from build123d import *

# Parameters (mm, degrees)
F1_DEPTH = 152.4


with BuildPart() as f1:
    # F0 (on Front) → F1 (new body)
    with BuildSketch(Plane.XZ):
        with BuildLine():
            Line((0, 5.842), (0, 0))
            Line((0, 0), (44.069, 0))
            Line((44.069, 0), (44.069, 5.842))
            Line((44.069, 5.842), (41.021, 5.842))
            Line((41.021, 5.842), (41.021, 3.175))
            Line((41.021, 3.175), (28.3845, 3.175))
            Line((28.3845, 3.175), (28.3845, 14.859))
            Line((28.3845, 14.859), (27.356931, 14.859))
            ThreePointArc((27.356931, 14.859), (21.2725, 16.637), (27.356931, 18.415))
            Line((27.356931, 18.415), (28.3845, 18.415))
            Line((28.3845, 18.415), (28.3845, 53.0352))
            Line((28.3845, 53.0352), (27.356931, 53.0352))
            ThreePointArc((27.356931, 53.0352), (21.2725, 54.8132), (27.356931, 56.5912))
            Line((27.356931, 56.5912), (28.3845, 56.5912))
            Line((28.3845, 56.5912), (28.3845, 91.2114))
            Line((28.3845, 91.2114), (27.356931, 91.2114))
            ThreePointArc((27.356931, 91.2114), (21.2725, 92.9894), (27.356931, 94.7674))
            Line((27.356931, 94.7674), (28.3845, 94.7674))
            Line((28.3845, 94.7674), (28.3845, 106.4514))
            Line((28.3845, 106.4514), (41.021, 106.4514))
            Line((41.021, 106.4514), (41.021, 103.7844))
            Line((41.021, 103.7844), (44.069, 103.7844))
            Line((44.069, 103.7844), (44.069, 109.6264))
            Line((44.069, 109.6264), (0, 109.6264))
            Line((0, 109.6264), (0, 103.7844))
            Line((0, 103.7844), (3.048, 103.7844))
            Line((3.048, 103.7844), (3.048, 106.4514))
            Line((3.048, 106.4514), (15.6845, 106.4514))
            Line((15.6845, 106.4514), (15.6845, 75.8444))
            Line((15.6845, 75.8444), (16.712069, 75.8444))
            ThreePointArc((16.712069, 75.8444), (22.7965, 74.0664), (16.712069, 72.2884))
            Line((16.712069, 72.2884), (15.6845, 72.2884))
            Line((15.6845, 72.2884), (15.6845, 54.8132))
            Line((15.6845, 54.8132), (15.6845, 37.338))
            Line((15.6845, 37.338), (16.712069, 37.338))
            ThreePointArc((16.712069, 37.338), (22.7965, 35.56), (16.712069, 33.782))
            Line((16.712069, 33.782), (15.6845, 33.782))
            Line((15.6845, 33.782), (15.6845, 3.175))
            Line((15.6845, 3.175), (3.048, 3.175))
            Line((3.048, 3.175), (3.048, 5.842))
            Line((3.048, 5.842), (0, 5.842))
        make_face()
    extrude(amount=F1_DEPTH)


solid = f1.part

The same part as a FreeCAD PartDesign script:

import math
import FreeCAD as App
import Part
import Sketcher
from FreeCAD import Vector
Q = App.Units.Quantity

doc = App.newDocument("Part")
params = doc.addObject("Spreadsheet::Sheet", "Params")
for row, (alias, value) in enumerate([
    ("sketch1_radius", "0.13 in"),
    ("sketch1_width", "0.12 in"),
    ("sketch1_height", "0.23 in"),
    ("sketch1_height2", "0.46 in"),
    ("sketch1_width2", "1.735 in"),
    ("pad1_length", "6 in"),
], start=1):
    params.set(f"A{row}", alias)
    params.set(f"B{row}", "=" + value)
    params.setAlias(f"B{row}", alias)

body = doc.addObject("PartDesign::Body", "Body")

# Sketch on XZ plane
sketch1 = doc.addObject("Sketcher::SketchObject", "Sketch")
body.addObject(sketch1)
sketch1.AttachmentSupport = (doc.XZ_Plane, [""])
sketch1.MapMode = "FlatFace"
sketch1.addGeometry([
    Part.LineSegment(Vector(0, 5.8, 0), Vector(0, 0, 0)),  # 0
    Part.LineSegment(Vector(0, 0, 0), Vector(44.1, 0, 0)),  # 1
    Part.LineSegment(Vector(44.1, 0, 0), Vector(44.1, 5.8, 0)),  # 2
    Part.LineSegment(Vector(44.1, 5.8, 0), Vector(41, 5.8, 0)),  # 3
    Part.LineSegment(Vector(41, 5.8, 0), Vector(41, 3.2, 0)),  # 4
    Part.LineSegment(Vector(41, 3.2, 0), Vector(28.4, 3.2, 0)),  # 5
    Part.LineSegment(Vector(28.4, 3.2, 0), Vector(28.4, 14.9, 0)),  # 6
    Part.LineSegment(Vector(28.4, 14.9, 0), Vector(27.4, 14.9, 0)),  # 7
    Part.ArcOfCircle(Part.Circle(Vector(24.6, 16.6, 0), Vector(0, 0, 1), 3.3), math.radians(33), math.radians(327)),  # 8
    Part.LineSegment(Vector(27.4, 18.4, 0), Vector(28.4, 18.4, 0)),  # 9
    Part.LineSegment(Vector(28.4, 18.4, 0), Vector(28.4, 53, 0)),  # 10
    Part.LineSegment(Vector(28.4, 53, 0), Vector(27.4, 53, 0)),  # 11
    Part.ArcOfCircle(Part.Circle(Vector(24.6, 54.8, 0), Vector(0, 0, 1), 3.3), math.radians(33), math.radians(327)),  # 12
    Part.LineSegment(Vector(27.4, 56.6, 0), Vector(28.4, 56.6, 0)),  # 13
    Part.LineSegment(Vector(28.4, 56.6, 0), Vector(28.4, 91.2, 0)),  # 14
    Part.LineSegment(Vector(28.4, 91.2, 0), Vector(27.4, 91.2, 0)),  # 15
    Part.ArcOfCircle(Part.Circle(Vector(24.6, 93, 0), Vector(0, 0, 1), 3.3), math.radians(33), math.radians(327)),  # 16
    Part.LineSegment(Vector(27.4, 94.8, 0), Vector(28.4, 94.8, 0)),  # 17
    Part.LineSegment(Vector(28.4, 94.8, 0), Vector(28.4, 106.5, 0)),  # 18
    Part.LineSegment(Vector(28.4, 106.5, 0), Vector(41, 106.5, 0)),  # 19
    Part.LineSegment(Vector(41, 106.5, 0), Vector(41, 103.8, 0)),  # 20
    Part.LineSegment(Vector(41, 103.8, 0), Vector(44.1, 103.8, 0)),  # 21
    Part.LineSegment(Vector(44.1, 103.8, 0), Vector(44.1, 109.6, 0)),  # 22
    Part.LineSegment(Vector(44.1, 109.6, 0), Vector(0, 109.6, 0)),  # 23
    Part.LineSegment(Vector(0, 109.6, 0), Vector(0, 103.8, 0)),  # 24
    Part.LineSegment(Vector(0, 103.8, 0), Vector(3, 103.8, 0)),  # 25
    Part.LineSegment(Vector(3, 103.8, 0), Vector(3, 106.5, 0)),  # 26
    Part.LineSegment(Vector(3, 106.5, 0), Vector(15.7, 106.5, 0)),  # 27
    Part.LineSegment(Vector(15.7, 106.5, 0), Vector(15.7, 75.8, 0)),  # 28
    Part.LineSegment(Vector(15.7, 75.8, 0), Vector(16.7, 75.8, 0)),  # 29
    Part.ArcOfCircle(Part.Circle(Vector(19.5, 74.1, 0), Vector(0, 0, 1), 3.3), math.radians(-147), math.radians(147)),  # 30
    Part.LineSegment(Vector(16.7, 72.3, 0), Vector(15.7, 72.3, 0)),  # 31
    Part.LineSegment(Vector(15.7, 72.3, 0), Vector(15.7, 37.3, 0)),  # 32
    Part.LineSegment(Vector(15.7, 37.3, 0), Vector(16.7, 37.3, 0)),  # 33
    Part.ArcOfCircle(Part.Circle(Vector(19.5, 35.6, 0), Vector(0, 0, 1), 3.3), math.radians(-147), math.radians(147)),  # 34
    Part.LineSegment(Vector(16.7, 33.8, 0), Vector(15.7, 33.8, 0)),  # 35
    Part.LineSegment(Vector(15.7, 33.8, 0), Vector(15.7, 3.2, 0)),  # 36
    Part.LineSegment(Vector(15.7, 3.2, 0), Vector(3, 3.2, 0)),  # 37
    Part.LineSegment(Vector(3, 3.2, 0), Vector(3, 5.8, 0)),  # 38
    Part.LineSegment(Vector(3, 5.8, 0), Vector(0, 5.8, 0)),  # 39
], False)
sketch1.addConstraint([
    Sketcher.Constraint("Coincident", 0, 2, 1, 1),
    Sketcher.Constraint("Coincident", 1, 2, 2, 1),
    Sketcher.Constraint("Coincident", 2, 2, 3, 1),
    Sketcher.Constraint("Coincident", 3, 2, 4, 1),
    Sketcher.Constraint("Coincident", 4, 2, 5, 1),
    Sketcher.Constraint("Coincident", 5, 2, 6, 1),
    Sketcher.Constraint("Coincident", 6, 2, 7, 1),
    Sketcher.Constraint("Coincident", 7, 2, 8, 2),
    Sketcher.Constraint("Coincident", 8, 1, 9, 1),
    Sketcher.Constraint("Coincident", 9, 2, 10, 1),
    Sketcher.Constraint("Coincident", 10, 2, 11, 1),
    Sketcher.Constraint("Coincident", 11, 2, 12, 2),
    Sketcher.Constraint("Coincident", 12, 1, 13, 1),
    Sketcher.Constraint("Coincident", 13, 2, 14, 1),
    Sketcher.Constraint("Coincident", 14, 2, 15, 1),
    Sketcher.Constraint("Coincident", 15, 2, 16, 2),
    Sketcher.Constraint("Coincident", 16, 1, 17, 1),
    Sketcher.Constraint("Coincident", 17, 2, 18, 1),
    Sketcher.Constraint("Coincident", 18, 2, 19, 1),
    Sketcher.Constraint("Coincident", 19, 2, 20, 1),
    Sketcher.Constraint("Coincident", 20, 2, 21, 1),
    Sketcher.Constraint("Coincident", 21, 2, 22, 1),
    Sketcher.Constraint("Coincident", 22, 2, 23, 1),
    Sketcher.Constraint("Coincident", 23, 2, 24, 1),
    Sketcher.Constraint("Coincident", 24, 2, 25, 1),
    Sketcher.Constraint("Coincident", 25, 2, 26, 1),
    Sketcher.Constraint("Coincident", 26, 2, 27, 1),
    Sketcher.Constraint("Coincident", 27, 2, 28, 1),
    Sketcher.Constraint("Coincident", 28, 2, 29, 1),
    Sketcher.Constraint("Coincident", 29, 2, 30, 2),
    Sketcher.Constraint("Coincident", 30, 1, 31, 1),
    Sketcher.Constraint("Coincident", 31, 2, 32, 1),
    Sketcher.Constraint("Coincident", 32, 2, 33, 1),
    Sketcher.Constraint("Coincident", 33, 2, 34, 2),
    Sketcher.Constraint("Coincident", 34, 1, 35, 1),
    Sketcher.Constraint("Coincident", 35, 2, 36, 1),
    Sketcher.Constraint("Coincident", 36, 2, 37, 1),
    Sketcher.Constraint("Coincident", 37, 2, 38, 1),
    Sketcher.Constraint("Coincident", 38, 2, 39, 1),
    Sketcher.Constraint("Coincident", 39, 2, 0, 1),
    Sketcher.Constraint("Vertical", 0),
    Sketcher.Constraint("Horizontal", 1),
    Sketcher.Constraint("Vertical", 2),
    Sketcher.Constraint("Horizontal", 3),
    Sketcher.Constraint("Vertical", 4),
    Sketcher.Constraint("Horizontal", 5),
    Sketcher.Constraint("Vertical", 6),
    Sketcher.Constraint("Horizontal", 7),
    Sketcher.Constraint("Horizontal", 9),
    Sketcher.Constraint("Vertical", 10),
    Sketcher.Constraint("Horizontal", 11),
    Sketcher.Constraint("Horizontal", 13),
    Sketcher.Constraint("Vertical", 14),
    Sketcher.Constraint("Horizontal", 15),
    Sketcher.Constraint("Horizontal", 17),
    Sketcher.Constraint("Vertical", 18),
    Sketcher.Constraint("Horizontal", 19),
    Sketcher.Constraint("Vertical", 20),
    Sketcher.Constraint("Horizontal", 21),
    Sketcher.Constraint("Vertical", 22),
    Sketcher.Constraint("Horizontal", 23),
    Sketcher.Constraint("Vertical", 24),
    Sketcher.Constraint("Horizontal", 25),
    Sketcher.Constraint("Vertical", 26),
    Sketcher.Constraint("Horizontal", 27),
    Sketcher.Constraint("Vertical", 28),
    Sketcher.Constraint("Horizontal", 29),
    Sketcher.Constraint("Horizontal", 31),
    Sketcher.Constraint("Vertical", 32),
    Sketcher.Constraint("Horizontal", 33),
    Sketcher.Constraint("Horizontal", 35),
    Sketcher.Constraint("Vertical", 36),
    Sketcher.Constraint("Horizontal", 37),
    Sketcher.Constraint("Vertical", 38),
    Sketcher.Constraint("Horizontal", 39),
    Sketcher.Constraint("Coincident", 0, 2, -1, 1),
    Sketcher.Constraint("Equal", 8, 12),
    Sketcher.Constraint("Equal", 12, 16),
    Sketcher.Constraint("Equal", 16, 30),
    Sketcher.Constraint("Equal", 30, 34),
    Sketcher.Constraint("PointOnObject", 23, 2, -2),
    Sketcher.Constraint("Horizontal", 21, 2, 24, 2),
    Sketcher.Constraint("Horizontal", 19, 2, 26, 2),
    Sketcher.Constraint("Horizontal", 5, 2, 36, 2),
    Sketcher.Constraint("Horizontal", 3, 2, 38, 2),
    Sketcher.Constraint("Vertical", 8, 3, 12, 3),
    Sketcher.Constraint("Vertical", 12, 3, 16, 3),
    Sketcher.Constraint("Vertical", 30, 3, 34, 3),
    Sketcher.Constraint("Vertical", 7, 2, 8, 1),
    Sketcher.Constraint("Vertical", 6, 2, 9, 2),
    Sketcher.Constraint("Vertical", 8, 1, 11, 2),
    Sketcher.Constraint("Vertical", 11, 2, 12, 1),
    Sketcher.Constraint("Vertical", 10, 2, 13, 2),
    Sketcher.Constraint("Vertical", 12, 1, 15, 2),
    Sketcher.Constraint("Vertical", 15, 2, 16, 1),
    Sketcher.Constraint("Vertical", 14, 2, 17, 2),
    Sketcher.Constraint("Vertical", 4, 2, 19, 2),
    Sketcher.Constraint("Vertical", 2, 2, 21, 2),
    Sketcher.Constraint("Vertical", 29, 2, 30, 1),
    Sketcher.Constraint("Vertical", 28, 2, 31, 2),
    Sketcher.Constraint("Vertical", 30, 1, 33, 2),
    Sketcher.Constraint("Vertical", 33, 2, 34, 1),
    Sketcher.Constraint("Vertical", 32, 2, 35, 2),
    Sketcher.Constraint("Vertical", 26, 2, 37, 2),
    Sketcher.Constraint("Equal", 21, 25),
    Sketcher.Constraint("Equal", 19, 27),
    Sketcher.Constraint("Equal", 17, 29),
    Sketcher.Constraint("Equal", 10, 14),
    Sketcher.Constraint("Equal", 6, 18),
    Sketcher.Constraint("Equal", 4, 20),
    Sketcher.Constraint("Equal", 2, 22),
    Sketcher.Constraint("Equal", 28, 36),
    Sketcher.Constraint("Radius", 8, Q("0.13 in")),
    Sketcher.Constraint("DistanceX", 3, 2, 3, 1, Q("0.12 in")),
    Sketcher.Constraint("DistanceY", 0, 2, 0, 1, Q("0.23 in")),
    Sketcher.Constraint("DistanceY", 6, 1, 6, 2, Q("0.46 in")),
    Sketcher.Constraint("DistanceY", -1, 1, 34, 3, Q("1.4 in")),
    Sketcher.Constraint("DistanceX", 30, 3, 16, 3, Q("0.2 in")),
    Sketcher.Constraint("DistanceY", 5, 2, 8, 1, Q("0.6 in")),
    Sketcher.Constraint("DistanceX", 27, 2, 18, 2, Q("0.5 in")),
    Sketcher.Constraint("DistanceX", 1, 1, 1, 2, Q("1.735 in")),
    Sketcher.Constraint("DistanceY", 4, 2, 4, 1, Q("0.105 in")),
    Sketcher.Constraint("DistanceY", 10, 1, 10, 2, Q("1.363 in")),
    Sketcher.Constraint("DistanceY", 28, 2, 28, 1, Q("1.205 in")),
])
sketch1.setExpression("Constraints[112]", "Params.sketch1_radius")
sketch1.setExpression("Constraints[113]", "Params.sketch1_width")
sketch1.setExpression("Constraints[114]", "Params.sketch1_height")
sketch1.setExpression("Constraints[115]", "Params.sketch1_height2")
sketch1.setExpression("Constraints[120]", "Params.sketch1_width2")
pad1 = doc.addObject("PartDesign::Pad", "Pad")
body.addObject(pad1)
pad1.Profile = sketch1
pad1.setExpression("Length", "Params.pad1_length")

doc.recompute()
